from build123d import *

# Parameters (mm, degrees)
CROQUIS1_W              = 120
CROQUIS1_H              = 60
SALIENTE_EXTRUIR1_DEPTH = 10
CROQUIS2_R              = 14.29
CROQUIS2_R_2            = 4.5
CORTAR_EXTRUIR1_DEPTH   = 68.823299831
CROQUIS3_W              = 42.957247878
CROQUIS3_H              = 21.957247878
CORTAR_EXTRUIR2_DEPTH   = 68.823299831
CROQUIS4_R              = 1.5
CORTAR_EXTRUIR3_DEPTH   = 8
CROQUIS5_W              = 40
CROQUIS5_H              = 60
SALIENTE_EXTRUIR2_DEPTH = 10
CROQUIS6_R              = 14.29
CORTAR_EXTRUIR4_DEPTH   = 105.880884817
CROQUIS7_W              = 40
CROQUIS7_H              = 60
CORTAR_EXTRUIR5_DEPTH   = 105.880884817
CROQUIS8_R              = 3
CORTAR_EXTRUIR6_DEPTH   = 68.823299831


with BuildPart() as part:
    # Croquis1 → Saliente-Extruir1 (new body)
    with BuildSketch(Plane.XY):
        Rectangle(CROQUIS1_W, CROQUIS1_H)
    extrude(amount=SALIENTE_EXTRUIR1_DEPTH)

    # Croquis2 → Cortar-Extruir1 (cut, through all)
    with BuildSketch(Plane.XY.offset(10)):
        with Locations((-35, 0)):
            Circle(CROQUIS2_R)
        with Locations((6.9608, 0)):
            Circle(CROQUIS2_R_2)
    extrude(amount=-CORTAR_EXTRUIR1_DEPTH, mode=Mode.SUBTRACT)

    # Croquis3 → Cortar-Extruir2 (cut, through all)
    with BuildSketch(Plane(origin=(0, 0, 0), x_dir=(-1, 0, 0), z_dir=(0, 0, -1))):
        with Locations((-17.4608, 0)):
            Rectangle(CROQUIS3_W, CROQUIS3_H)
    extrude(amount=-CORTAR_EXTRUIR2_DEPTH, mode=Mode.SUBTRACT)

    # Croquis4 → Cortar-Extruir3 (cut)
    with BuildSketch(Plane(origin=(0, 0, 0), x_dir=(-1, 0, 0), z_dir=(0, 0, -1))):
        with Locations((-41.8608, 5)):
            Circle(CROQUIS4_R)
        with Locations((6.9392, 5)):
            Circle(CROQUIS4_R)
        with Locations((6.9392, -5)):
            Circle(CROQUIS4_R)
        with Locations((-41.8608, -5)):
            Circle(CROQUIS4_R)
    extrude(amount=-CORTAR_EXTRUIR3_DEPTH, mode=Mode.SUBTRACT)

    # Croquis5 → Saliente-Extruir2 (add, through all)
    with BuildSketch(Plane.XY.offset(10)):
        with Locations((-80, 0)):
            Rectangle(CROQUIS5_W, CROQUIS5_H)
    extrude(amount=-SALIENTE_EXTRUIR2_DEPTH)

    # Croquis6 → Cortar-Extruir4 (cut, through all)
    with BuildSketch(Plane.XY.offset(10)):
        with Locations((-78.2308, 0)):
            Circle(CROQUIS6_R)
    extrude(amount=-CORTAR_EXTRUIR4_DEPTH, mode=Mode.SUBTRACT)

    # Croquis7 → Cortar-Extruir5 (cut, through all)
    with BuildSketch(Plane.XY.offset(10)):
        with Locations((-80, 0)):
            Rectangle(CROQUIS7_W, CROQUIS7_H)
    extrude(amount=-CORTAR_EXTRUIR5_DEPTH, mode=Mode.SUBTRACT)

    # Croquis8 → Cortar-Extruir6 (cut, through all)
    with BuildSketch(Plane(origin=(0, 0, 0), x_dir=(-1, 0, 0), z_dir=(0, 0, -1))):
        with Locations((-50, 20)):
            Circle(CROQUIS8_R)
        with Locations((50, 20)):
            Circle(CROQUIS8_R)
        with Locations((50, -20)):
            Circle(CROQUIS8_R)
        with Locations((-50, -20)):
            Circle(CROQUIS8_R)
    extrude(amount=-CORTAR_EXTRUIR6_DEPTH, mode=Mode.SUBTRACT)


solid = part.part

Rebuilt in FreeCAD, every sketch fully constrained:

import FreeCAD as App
import Part
import Sketcher

V = App.Vector
Q = App.Units.Quantity


def add_polygon(sketch, points):
    """Adds a closed chain of lines whose ends are joined by coincident constraints."""
    first, n = sketch.GeometryCount, len(points)
    for a, b in zip(points, points[1:] + points[:1]):
        sketch.addGeometry(Part.LineSegment(App.Vector(*a, 0), App.Vector(*b, 0)), False)
    for i in range(n):
        sketch.addConstraint(Sketcher.Constraint("Coincident", first + i, 2, first + (i + 1) % n, 1))

doc = App.newDocument("Part")
params = doc.addObject("Spreadsheet::Sheet", "Params")
for row, (alias, value) in enumerate([
    ("sketch1_width", "120 mm"),
    ("sketch1_height", "60 mm"),
    ("pad1_length", "10 mm"),
    ("sketch2_diameter", "9 mm"),
    ("sketch2_diameter2", "28.58 mm"),
    ("sketch4_diameter", "3 mm"),
    ("pocket3_length", "8 mm"),
    ("sketch5_width", "40 mm"),
    ("sketch5_height", "60 mm"),
    ("pad2_length", "10 mm"),
    ("sketch6_diameter", "28.58 mm"),
    ("sketch7_width", "40 mm"),
    ("sketch7_height", "60 mm"),
    ("sketch8_diameter", "6 mm"),
], start=1):
    params.set(f"A{row}", alias)
    params.set(f"B{row}", "=" + value)
    params.setAlias(f"B{row}", alias)

body = doc.addObject("PartDesign::Body", "Body")

# Sketch on XY plane
sketch1 = body.newObject("Sketcher::SketchObject", "Sketch")
sketch1.AttachmentSupport = (doc.getObject("XY_Plane"), [""])
sketch1.MapMode = "FlatFace"
add_polygon(sketch1, [(-60, 30), (-60, -30), (60, -30), (60, 30)])  # lines 0-3
sketch1.addConstraint([
    Sketcher.Constraint("Vertical", 0),
    Sketcher.Constraint("Horizontal", 1),
    Sketcher.Constraint("Vertical", 2),
    Sketcher.Constraint("Horizontal", 3),
    Sketcher.Constraint("Symmetric", 0, 2, 2, 2, -1, 1),
    Sketcher.Constraint("DistanceX", 1, 1, 1, 2, Q("120 mm")),
    Sketcher.Constraint("DistanceY", 0, 2, 0, 1, Q("60 mm")),
])
sketch1.setExpression("Constraints[9]", "Params.sketch1_width")
sketch1.setExpression("Constraints[10]", "Params.sketch1_height")
pad1 = body.newObject("PartDesign::Pad", "Pad")
pad1.Profile = sketch1
pad1.setExpression("Length", "Params.pad1_length")

# Sketch on XY plane
sketch2 = body.newObject("Sketcher::SketchObject", "Sketch001")
sketch2.AttachmentSupport = (doc.getObject("XY_Plane"), [""])
sketch2.MapMode = "FlatFace"
sketch2.AttachmentOffset = App.Placement(V(0, 0, 10), App.Rotation())
sketch2.addGeometry([
    Part.Circle(V(-35, 0, 0), V(0, 0, 1), 14.29),
    Part.Circle(V(6.9608, 0, 0), V(0, 0, 1), 4.5),
], False)
sketch2.addConstraint([
    Sketcher.Constraint("PointOnObject", 0, 3, -1),
    Sketcher.Constraint("PointOnObject", 1, 3, -1),
    Sketcher.Constraint("Diameter", 1, Q("9 mm")),
    Sketcher.Constraint("Diameter", 0, Q("28.58 mm")),
    Sketcher.Constraint("DistanceX", 0, 3, -1, 1, Q("35 mm")),
    Sketcher.Constraint("DistanceX", -1, 1, 1, 3, Q("6.9608 mm")),
])
sketch2.setExpression("Constraints[2]", "Params.sketch2_diameter")
sketch2.setExpression("Constraints[3]", "Params.sketch2_diameter2")
pocket1 = body.newObject("PartDesign::Pocket", "Pocket")
pocket1.Profile = sketch2
pocket1.Type = "ThroughAll"

# Sketch on XY plane
sketch3 = body.newObject("Sketcher::SketchObject", "Sketch002")
sketch3.AttachmentSupport = (doc.getObject("XY_Plane"), [""])
sketch3.MapMode = "FlatFace"
add_polygon(sketch3, [(38.939424, 10.978624), (38.939424, -10.978624), (-4.017824, -10.978624), (-4.017824, 10.978624)])  # lines 0-3
sketch3.addConstraint([
    Sketcher.Constraint("Vertical", 0),
    Sketcher.Constraint("Horizontal", 1),
    Sketcher.Constraint("Vertical", 2),
    Sketcher.Constraint("Horizontal", 3),
    Sketcher.Constraint("DistanceX", 1, 2, 1, 1, Q("42.957248 mm")),
    Sketcher.Constraint("DistanceY", 0, 2, 0, 1, Q("21.957248 mm")),
    Sketcher.Constraint("DistanceX", -1, 1, 0, 2, Q("38.939424 mm")),
    Sketcher.Constraint("DistanceY", 0, 2, -1, 1, Q("10.978624 mm")),
])
pocket2 = body.newObject("PartDesign::Pocket", "Pocket001")
pocket2.Profile = sketch3
pocket2.Type = "ThroughAll"
pocket2.Reversed = True

# Sketch on XY plane
sketch4 = body.newObject("Sketcher::SketchObject", "Sketch003")
sketch4.AttachmentSupport = (doc.getObject("XY_Plane"), [""])
sketch4.MapMode = "FlatFace"
sketch4.addGeometry([
    Part.Circle(V(41.8608, 5, 0), V(0, 0, 1), 1.5),
    Part.Circle(V(-6.9392, 5, 0), V(0, 0, 1), 1.5),
    Part.Circle(V(-6.9392, -5, 0), V(0, 0, 1), 1.5),
    Part.Circle(V(41.8608, -5, 0), V(0, 0, 1), 1.5),
], False)
sketch4.addConstraint([
    Sketcher.Constraint("Equal", 0, 1),
    Sketcher.Constraint("Equal", 1, 2),
    Sketcher.Constraint("Equal", 2, 3),
    Sketcher.Constraint("Symmetric", 1, 3, 2, 3, -1),
    Sketcher.Constraint("Symmetric", 0, 3, 3, 3, -1),
    Sketcher.Constraint("Horizontal", 0, 3, 1, 3),
    Sketcher.Constraint("Diameter", 0, Q("3 mm")),
    Sketcher.Constraint("DistanceY", -1, 1, 0, 3, Q("5 mm")),
    Sketcher.Constraint("DistanceX", 1, 3, 0, 3, Q("48.8 mm")),
    Sketcher.Constraint("DistanceX", -1, 1, 0, 3, Q("41.8608 mm")),
])
sketch4.setExpression("Constraints[6]", "Params.sketch4_diameter")
pocket3 = body.newObject("PartDesign::Pocket", "Pocket002")
pocket3.Profile = sketch4
pocket3.setExpression("Length", "Params.pocket3_length")
pocket3.Reversed = True

# Sketch on XY plane
sketch5 = body.newObject("Sketcher::SketchObject", "Sketch004")
sketch5.AttachmentSupport = (doc.getObject("XY_Plane"), [""])
sketch5.MapMode = "FlatFace"
sketch5.AttachmentOffset = App.Placement(V(0, 0, 10), App.Rotation())
add_polygon(sketch5, [(-100, 30), (-100, -30), (-60, -30), (-60, 30)])  # lines 0-3
sketch5.addConstraint([
    Sketcher.Constraint("Vertical", 0),
    Sketcher.Constraint("Horizontal", 1),
    Sketcher.Constraint("Vertical", 2),
    Sketcher.Constraint("Horizontal", 3),
    Sketcher.Constraint("DistanceX", 1, 1, 1, 2, Q("40 mm")),
    Sketcher.Constraint("DistanceY", 0, 2, 0, 1, Q("60 mm")),
    Sketcher.Constraint("DistanceX", 0, 2, -1, 1, Q("100 mm")),
    Sketcher.Constraint("DistanceY", 0, 2, -1, 1, Q("30 mm")),
])
sketch5.setExpression("Constraints[8]", "Params.sketch5_width")
sketch5.setExpression("Constraints[9]", "Params.sketch5_height")
pad2 = body.newObject("PartDesign::Pad", "Pad001")
pad2.Profile = sketch5
pad2.setExpression("Length", "Params.pad2_length")
pad2.Reversed = True

# Sketch on XY plane
sketch6 = body.newObject("Sketcher::SketchObject", "Sketch005")
sketch6.AttachmentSupport = (doc.getObject("XY_Plane"), [""])
sketch6.MapMode = "FlatFace"
sketch6.AttachmentOffset = App.Placement(V(0, 0, 10), App.Rotation())
sketch6.addGeometry(Part.Circle(V(-78.2308, 0, 0), V(0, 0, 1), 14.29), False)
sketch6.addConstraint([
    Sketcher.Constraint("PointOnObject", 0, 3, -1),
    Sketcher.Constraint("Diameter", 0, Q("28.58 mm")),
    Sketcher.Constraint("DistanceX", 0, 3, -1, 1, Q("78.2308 mm")),
])
sketch6.setExpression("Constraints[1]", "Params.sketch6_diameter")
pocket4 = body.newObject("PartDesign::Pocket", "Pocket003")
pocket4.Profile = sketch6
pocket4.Type = "ThroughAll"

# Sketch on XY plane
sketch7 = body.newObject("Sketcher::SketchObject", "Sketch006")
sketch7.AttachmentSupport = (doc.getObject("XY_Plane"), [""])
sketch7.MapMode = "FlatFace"
sketch7.AttachmentOffset = App.Placement(V(0, 0, 10), App.Rotation())
add_polygon(sketch7, [(-100, 30), (-100, -30), (-60, -30), (-60, 30)])  # lines 0-3
sketch7.addConstraint([
    Sketcher.Constraint("Vertical", 0),
    Sketcher.Constraint("Horizontal", 1),
    Sketcher.Constraint("Vertical", 2),
    Sketcher.Constraint("Horizontal", 3),
    Sketcher.Constraint("DistanceX", 1, 1, 1, 2, Q("40 mm")),
    Sketcher.Constraint("DistanceY", 0, 2, 0, 1, Q("60 mm")),
    Sketcher.Constraint("DistanceX", 0, 2, -1, 1, Q("100 mm")),
    Sketcher.Constraint("DistanceY", 0, 2, -1, 1, Q("30 mm")),
])
sketch7.setExpression("Constraints[8]", "Params.sketch7_width")
sketch7.setExpression("Constraints[9]", "Params.sketch7_height")
pocket5 = body.newObject("PartDesign::Pocket", "Pocket004")
pocket5.Profile = sketch7
pocket5.Type = "ThroughAll"

# Sketch on XY plane
sketch8 = body.newObject("Sketcher::SketchObject", "Sketch007")
sketch8.AttachmentSupport = (doc.getObject("XY_Plane"), [""])
sketch8.MapMode = "FlatFace"
sketch8.addGeometry([
    Part.Circle(V(50, 20, 0), V(0, 0, 1), 3),
    Part.Circle(V(-50, 20, 0), V(0, 0, 1), 3),
    Part.Circle(V(-50, -20, 0), V(0, 0, 1), 3),
    Part.Circle(V(50, -20, 0), V(0, 0, 1), 3),
], False)
sketch8.addConstraint([
    Sketcher.Constraint("Equal", 0, 1),
    Sketcher.Constraint("Equal", 1, 2),
    Sketcher.Constraint("Equal", 2, 3),
    Sketcher.Constraint("Symmetric", 0, 3, 2, 3, -1, 1),
    Sketcher.Constraint("Symmetric", 1, 3, 3, 3, -1, 1),
    Sketcher.Constraint("Symmetric", 0, 3, 1, 3, -2),
    Sketcher.Constraint("Diameter", 0, Q("6 mm")),
    Sketcher.Constraint("DistanceX", -1, 1, 0, 3, Q("50 mm")),
    Sketcher.Constraint("DistanceY", -1, 1, 0, 3, Q("20 mm")),
])
sketch8.setExpression("Constraints[6]", "Params.sketch8_diameter")
pocket6 = body.newObject("PartDesign::Pocket", "Pocket005")
pocket6.Profile = sketch8
pocket6.Type = "ThroughAll"
pocket6.Reversed = True

doc.recompute()
